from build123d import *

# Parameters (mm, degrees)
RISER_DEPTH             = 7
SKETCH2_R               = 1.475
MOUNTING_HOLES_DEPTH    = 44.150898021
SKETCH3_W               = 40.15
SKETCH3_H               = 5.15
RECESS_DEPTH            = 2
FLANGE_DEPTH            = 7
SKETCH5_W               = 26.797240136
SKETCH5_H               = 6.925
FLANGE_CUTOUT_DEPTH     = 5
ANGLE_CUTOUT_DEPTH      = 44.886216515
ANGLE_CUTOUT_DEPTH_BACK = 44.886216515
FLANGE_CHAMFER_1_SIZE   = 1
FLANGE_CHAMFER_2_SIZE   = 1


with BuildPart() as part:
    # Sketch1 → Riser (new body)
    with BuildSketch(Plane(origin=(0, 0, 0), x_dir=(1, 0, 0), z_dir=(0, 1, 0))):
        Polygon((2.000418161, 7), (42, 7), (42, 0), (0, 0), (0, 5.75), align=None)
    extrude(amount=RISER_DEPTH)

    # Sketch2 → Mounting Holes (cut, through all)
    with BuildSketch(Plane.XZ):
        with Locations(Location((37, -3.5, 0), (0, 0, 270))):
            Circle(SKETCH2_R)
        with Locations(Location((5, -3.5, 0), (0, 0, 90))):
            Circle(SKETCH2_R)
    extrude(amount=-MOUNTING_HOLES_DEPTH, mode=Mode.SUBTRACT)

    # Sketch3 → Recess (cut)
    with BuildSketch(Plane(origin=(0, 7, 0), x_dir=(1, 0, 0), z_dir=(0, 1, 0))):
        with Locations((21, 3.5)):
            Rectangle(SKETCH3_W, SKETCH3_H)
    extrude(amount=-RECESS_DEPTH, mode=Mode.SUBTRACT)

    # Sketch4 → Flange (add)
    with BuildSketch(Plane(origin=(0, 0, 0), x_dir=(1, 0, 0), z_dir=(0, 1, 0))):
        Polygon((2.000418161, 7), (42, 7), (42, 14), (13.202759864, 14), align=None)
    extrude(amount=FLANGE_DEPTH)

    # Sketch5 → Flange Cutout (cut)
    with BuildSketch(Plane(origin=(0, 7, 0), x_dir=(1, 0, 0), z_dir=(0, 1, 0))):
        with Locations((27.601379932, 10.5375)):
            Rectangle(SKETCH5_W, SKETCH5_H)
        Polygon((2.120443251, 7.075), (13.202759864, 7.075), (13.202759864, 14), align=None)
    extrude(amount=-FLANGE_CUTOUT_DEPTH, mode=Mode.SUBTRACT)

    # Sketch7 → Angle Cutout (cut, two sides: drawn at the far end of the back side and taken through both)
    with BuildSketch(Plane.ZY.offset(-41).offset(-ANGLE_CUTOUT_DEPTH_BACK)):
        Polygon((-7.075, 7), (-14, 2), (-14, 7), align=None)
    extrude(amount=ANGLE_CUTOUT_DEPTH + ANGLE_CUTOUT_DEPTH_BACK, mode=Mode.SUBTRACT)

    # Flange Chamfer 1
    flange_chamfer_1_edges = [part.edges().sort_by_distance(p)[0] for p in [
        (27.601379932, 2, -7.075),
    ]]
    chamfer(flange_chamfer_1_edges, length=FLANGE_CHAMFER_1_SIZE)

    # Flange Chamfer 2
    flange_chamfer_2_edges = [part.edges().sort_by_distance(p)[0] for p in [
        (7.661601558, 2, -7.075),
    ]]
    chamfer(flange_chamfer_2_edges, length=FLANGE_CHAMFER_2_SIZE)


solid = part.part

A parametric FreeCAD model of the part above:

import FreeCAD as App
import Part
import Sketcher
from FreeCAD import Vector
Q = App.Units.Quantity


def edges_at(feature, points):
    """Names of the edges that pass closest to the given points."""
    edges = feature.Shape.Edges
    near = lambda p: min(range(len(edges)), key=lambda i: edges[i].distToShape(Part.Vertex(*p))[0])
    return sorted({f"Edge{near(p) + 1}" for p in points})


def add_polygon(sketch, points):
    """Adds a closed chain of lines whose ends are joined by coincident constraints."""
    first, n = sketch.GeometryCount, len(points)
    for a, b in zip(points, points[1:] + points[:1]):
        sketch.addGeometry(Part.LineSegment(App.Vector(*a, 0), App.Vector(*b, 0)), False)
    for i in range(n):
        sketch.addConstraint(Sketcher.Constraint("Coincident", first + i, 2, first + (i + 1) % n, 1))

doc = App.newDocument("Part")
body = doc.addObject("PartDesign::Body", "Body")

# Sketch on XZ plane
sketch1 = body.newObject("Sketcher::SketchObject", "Sketch")
sketch1.AttachmentSupport = (doc.getObject("XZ_Plane"), [""])
sketch1.MapMode = "FlatFace"
add_polygon(sketch1, [(42, -7), (2, -7), (0, -5.8), (0, 0), (42, 0)])  # lines 0-4
sketch1.addConstraint([
    Sketcher.Constraint("Horizontal", 0),
    Sketcher.Constraint("Vertical", 2),
    Sketcher.Constraint("Horizontal", 3),
    Sketcher.Constraint("Vertical", 4),
    Sketcher.Constraint("Coincident", 2, 2, -1, 1),
    Sketcher.Constraint("DistanceX", 3, 1, 3, 2, 42.0),
    Sketcher.Constraint("DistanceY", 4, 2, 4, 1, 7.0),
    Sketcher.Constraint("Angle", 1, Q("148 deg")),
    Sketcher.Constraint("DistanceY", 2, 1, 2, 2, 5.75),
])
pad1 = body.newObject("PartDesign::Pad", "Pad")
pad1.Profile = sketch1
pad1.Length = 7
pad1.Reversed = True

# Sketch on XZ plane
sketch2 = body.newObject("Sketcher::SketchObject", "Sketch001")
sketch2.AttachmentSupport = (doc.getObject("XZ_Plane"), [""])
sketch2.MapMode = "FlatFace"
sketch2.addGeometry([
    Part.Circle(Vector(37, -3.5, 0), Vector(0, 0, 1), 1.5),
    Part.Circle(Vector(5, -3.5, 0), Vector(0, 0, 1), 1.5),
], False)
sketch2.addConstraint([
    Sketcher.Constraint("Equal", 0, 1),
    Sketcher.Constraint("Horizontal", 0, 3, 1, 3),
    Sketcher.Constraint("Diameter", 0, 2.95),
    Sketcher.Constraint("DistanceX", -1, 1, 0, 3, 37.0),
    Sketcher.Constraint("DistanceX", -1, 1, 1, 3, 5.0),
    Sketcher.Constraint("DistanceY", 0, 3, -1, 1, 3.5),
])
pocket1 = body.newObject("PartDesign::Pocket", "Pocket")
pocket1.Profile = sketch2
pocket1.Type = "ThroughAll"

# Sketch on XZ plane
sketch3 = body.newObject("Sketcher::SketchObject", "Sketch002")
sketch3.AttachmentSupport = (doc.getObject("XZ_Plane"), [""])
sketch3.MapMode = "FlatFace"
sketch3.AttachmentOffset = App.Placement(Vector(0, 0, -7), App.Rotation())
add_polygon(sketch3, [(1, -6), (1, -1), (41, -1), (41, -6)])  # lines 0-3
sketch3.addConstraint([
    Sketcher.Constraint("Vertical", 0),
    Sketcher.Constraint("Horizontal", 1),
    Sketcher.Constraint("Vertical", 2),
    Sketcher.Constraint("Horizontal", 3),
    Sketcher.Constraint("DistanceX", 1, 1, 1, 2, 40.15),
    Sketcher.Constraint("DistanceY", 0, 1, 0, 2, 5.15),
    Sketcher.Constraint("DistanceX", -1, 1, 0, 2, 0.925),
    Sketcher.Constraint("DistanceY", 0, 2, -1, 1, 0.925),
])
pocket2 = body.newObject("PartDesign::Pocket", "Pocket001")
pocket2.Profile = sketch3
pocket2.Length = 2
pocket2.Reversed = True

# Sketch on XZ plane
sketch4 = body.newObject("Sketcher::SketchObject", "Sketch003")
sketch4.AttachmentSupport = (doc.getObject("XZ_Plane"), [""])
sketch4.MapMode = "FlatFace"
add_polygon(sketch4, [(2, -7), (42, -7), (42, -14), (13, -14)])  # lines 0-3
sketch4.addConstraint([
    Sketcher.Constraint("Horizontal", 0),
    Sketcher.Constraint("Vertical", 1),
    Sketcher.Constraint("Horizontal", 2),
    Sketcher.Constraint("DistanceY", 1, 2, 1, 1, 7.0),
    Sketcher.Constraint("Angle", 3, Q("148 deg")),
    Sketcher.Constraint("DistanceX", -1, 1, 0, 2, 42.0),
    Sketcher.Constraint("DistanceY", 0, 2, -1, 1, 7.0),
    Sketcher.Constraint("DistanceX", 0, 1, 0, 2, 39.999582),
])
pad2 = body.newObject("PartDesign::Pad", "Pad001")
pad2.Profile = sketch4
pad2.Length = 7
pad2.Reversed = True

# Sketch on XZ plane
sketch5 = body.newObject("Sketcher::SketchObject", "Sketch004")
sketch5.AttachmentSupport = (doc.getObject("XZ_Plane"), [""])
sketch5.MapMode = "FlatFace"
sketch5.AttachmentOffset = App.Placement(Vector(0, 0, -7), App.Rotation())
add_polygon(sketch5, [(14, -14), (14, -7), (41, -7), (41, -14)])  # lines 0-3
add_polygon(sketch5, [(2, -7), (13, -7), (13, -14)])  # lines 4-6
sketch5.addConstraint([
    Sketcher.Constraint("Vertical", 0),
    Sketcher.Constraint("Horizontal", 1),
    Sketcher.Constraint("Vertical", 2),
    Sketcher.Constraint("Horizontal", 3),
    Sketcher.Constraint("Horizontal", 4),
    Sketcher.Constraint("Vertical", 5),
    Sketcher.Constraint("Horizontal", 1, 2, 4, 2),
    Sketcher.Constraint("Horizontal", 3, 2, 5, 2),
    Sketcher.Constraint("Angle", 6, Q("148 deg")),
    Sketcher.Constraint("DistanceX", -1, 1, 1, 2, 41.0),
    Sketcher.Constraint("DistanceY", 2, 2, -1, 1, 14.0),
    Sketcher.Constraint("DistanceX", 4, 2, 0, 2, 1.0),
    Sketcher.Constraint("DistanceY", 0, 1, 0, 2, 6.925),
    Sketcher.Constraint("DistanceX", 1, 1, 1, 2, 26.79724),
])
pocket3 = body.newObject("PartDesign::Pocket", "Pocket002")
pocket3.Profile = sketch5
pocket3.Length = 5
pocket3.Reversed = True

# Sketch on YZ plane
sketch6 = body.newObject("Sketcher::SketchObject", "Sketch005")
sketch6.AttachmentSupport = (doc.getObject("YZ_Plane"), [""])
sketch6.MapMode = "FlatFace"
sketch6.AttachmentOffset = App.Placement(Vector(0, 0, 41), App.Rotation())
add_polygon(sketch6, [(2, -14), (7, -7), (7, -14)])  # lines 0-2
sketch6.addConstraint([
    Sketcher.Constraint("Vertical", 1),
    Sketcher.Constraint("Horizontal", 2),
    Sketcher.Constraint("DistanceX", 2, 2, 2, 1, 5.0),
    Sketcher.Constraint("DistanceX", -1, 1, 0, 2, 7.0),
    Sketcher.Constraint("DistanceY", 1, 2, -1, 1, 14.0),
    Sketcher.Constraint("DistanceY", 1, 2, 1, 1, 6.925),
])
pocket4 = body.newObject("PartDesign::Pocket", "Pocket003")
pocket4.Profile = sketch6
pocket4.Type = "ThroughAll"
pocket4.Midplane = True
doc.recompute()

chamfer = body.newObject("PartDesign::Chamfer", "Chamfer")
chamfer.Base = (pocket4, edges_at(pocket4, [(27.601, 2, -7.075)]))
chamfer.Size = 1
doc.recompute()

chamfer2 = body.newObject("PartDesign::Chamfer", "Chamfer001")
chamfer2.Base = (chamfer, edges_at(chamfer, [(7.662, 2, -7.075)]))
chamfer2.Size = 1

doc.recompute()
